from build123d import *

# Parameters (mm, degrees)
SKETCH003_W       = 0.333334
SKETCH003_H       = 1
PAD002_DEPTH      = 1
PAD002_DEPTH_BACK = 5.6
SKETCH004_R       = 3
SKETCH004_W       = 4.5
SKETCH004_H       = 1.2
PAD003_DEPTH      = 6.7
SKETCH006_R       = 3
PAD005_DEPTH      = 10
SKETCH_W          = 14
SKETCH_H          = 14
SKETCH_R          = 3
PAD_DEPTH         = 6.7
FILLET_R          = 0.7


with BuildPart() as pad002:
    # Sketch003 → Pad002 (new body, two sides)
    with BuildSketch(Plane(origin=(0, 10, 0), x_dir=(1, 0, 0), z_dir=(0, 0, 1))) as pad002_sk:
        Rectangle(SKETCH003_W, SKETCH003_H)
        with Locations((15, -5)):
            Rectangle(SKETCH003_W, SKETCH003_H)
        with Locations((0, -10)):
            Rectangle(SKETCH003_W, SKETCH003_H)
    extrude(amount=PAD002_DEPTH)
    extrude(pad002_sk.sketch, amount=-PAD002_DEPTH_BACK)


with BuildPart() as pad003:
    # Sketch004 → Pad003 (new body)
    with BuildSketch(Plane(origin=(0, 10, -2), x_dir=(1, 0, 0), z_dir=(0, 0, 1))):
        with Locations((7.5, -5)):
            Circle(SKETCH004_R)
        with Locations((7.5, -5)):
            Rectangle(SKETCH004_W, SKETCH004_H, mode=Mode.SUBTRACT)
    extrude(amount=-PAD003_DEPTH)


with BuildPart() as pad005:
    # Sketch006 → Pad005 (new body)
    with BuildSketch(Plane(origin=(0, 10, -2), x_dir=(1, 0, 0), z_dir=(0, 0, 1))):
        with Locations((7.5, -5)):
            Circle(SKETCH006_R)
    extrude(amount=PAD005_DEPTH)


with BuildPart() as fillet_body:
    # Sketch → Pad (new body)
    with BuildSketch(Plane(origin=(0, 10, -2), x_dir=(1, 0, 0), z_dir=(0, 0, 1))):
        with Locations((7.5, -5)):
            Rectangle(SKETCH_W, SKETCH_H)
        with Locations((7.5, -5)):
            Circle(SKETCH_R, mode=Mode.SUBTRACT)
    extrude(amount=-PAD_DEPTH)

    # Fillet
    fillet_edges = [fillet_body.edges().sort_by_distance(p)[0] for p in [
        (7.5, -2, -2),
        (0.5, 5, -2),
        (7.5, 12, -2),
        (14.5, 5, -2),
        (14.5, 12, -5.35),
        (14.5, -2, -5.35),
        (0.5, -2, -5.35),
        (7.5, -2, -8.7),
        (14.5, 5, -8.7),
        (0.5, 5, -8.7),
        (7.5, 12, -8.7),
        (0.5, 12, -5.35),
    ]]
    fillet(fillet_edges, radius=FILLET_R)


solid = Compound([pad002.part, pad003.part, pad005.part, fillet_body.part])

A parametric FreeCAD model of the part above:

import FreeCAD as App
import Part
import Sketcher

V = App.Vector
Q = App.Units.Quantity


def edges_at(feature, points):
    """Names of the edges that pass closest to the given points."""
    edges = feature.Shape.Edges
    near = lambda p: min(range(len(edges)), key=lambda i: edges[i].distToShape(Part.Vertex(*p))[0])
    return sorted({f"Edge{near(p) + 1}" for p in points})

doc = App.newDocument("Part")
body = doc.addObject("PartDesign::Body", "Body")
body.AllowCompound = True

sketch1 = doc.addObject("Sketcher::SketchObject", "Sketch")
body.addObject(sketch1)
sketch1.AttachmentSupport = (doc.XY_Plane, [""])
sketch1.MapMode = "FlatFace"
sketch1.addGeometry([
    Part.LineSegment(V(-0.166667, 10.5, 0), V(-0.166667, 9.5, 0)),
    Part.LineSegment(V(-0.166667, 9.5, 0), V(0.166667, 9.5, 0)),
    Part.LineSegment(V(0.166667, 9.5, 0), V(0.166667, 10.5, 0)),
    Part.LineSegment(V(0.166667, 10.5, 0), V(-0.166667, 10.5, 0)),
    Part.LineSegment(V(14.833333, 5.5, 0), V(14.833333, 4.5, 0)),
    Part.LineSegment(V(14.833333, 4.5, 0), V(15.166667, 4.5, 0)),
    Part.LineSegment(V(15.166667, 4.5, 0), V(15.166667, 5.5, 0)),
    Part.LineSegment(V(15.166667, 5.5, 0), V(14.833333, 5.5, 0)),
    Part.LineSegment(V(-0.166667, 0.5, 0), V(-0.166667, -0.5, 0)),
    Part.LineSegment(V(-0.166667, -0.5, 0), V(0.166667, -0.5, 0)),
    Part.LineSegment(V(0.166667, -0.5, 0), V(0.166667, 0.5, 0)),
    Part.LineSegment(V(0.166667, 0.5, 0), V(-0.166667, 0.5, 0)),
], False)
sketch1.addConstraint([
    Sketcher.Constraint("Coincident", 0, 2, 1, 1),
    Sketcher.Constraint("Coincident", 1, 2, 2, 1),
    Sketcher.Constraint("Coincident", 2, 2, 3, 1),
    Sketcher.Constraint("Coincident", 3, 2, 0, 1),
    Sketcher.Constraint("Coincident", 4, 2, 5, 1),
    Sketcher.Constraint("Coincident", 5, 2, 6, 1),
    Sketcher.Constraint("Coincident", 6, 2, 7, 1),
    Sketcher.Constraint("Coincident", 7, 2, 4, 1),
    Sketcher.Constraint("Coincident", 8, 2, 9, 1),
    Sketcher.Constraint("Coincident", 9, 2, 10, 1),
    Sketcher.Constraint("Coincident", 10, 2, 11, 1),
    Sketcher.Constraint("Coincident", 11, 2, 8, 1),
    Sketcher.Constraint("Vertical", 0),
    Sketcher.Constraint("Horizontal", 1),
    Sketcher.Constraint("Vertical", 2),
    Sketcher.Constraint("Horizontal", 3),
    Sketcher.Constraint("Vertical", 4),
    Sketcher.Constraint("Horizontal", 5),
    Sketcher.Constraint("Vertical", 6),
    Sketcher.Constraint("Horizontal", 7),
    Sketcher.Constraint("Vertical", 8),
    Sketcher.Constraint("Horizontal", 9),
    Sketcher.Constraint("Vertical", 10),
    Sketcher.Constraint("Horizontal", 11),
    Sketcher.Constraint("Symmetric", 8, 2, 10, 2, -1, 1),
    Sketcher.Constraint("Vertical", 3, 2, 8, 2),
    Sketcher.Constraint("Vertical", 2, 2, 9, 2),
    Sketcher.Constraint("Equal", 3, 5),
    Sketcher.Constraint("Equal", 2, 4),
    Sketcher.Constraint("Equal", 6, 8),
    Sketcher.Constraint("DistanceY", 0, 2, 0, 1, Q("1 mm")),
    Sketcher.Constraint("DistanceY", 4, 2, 1, 2, Q("5 mm")),
    Sketcher.Constraint("DistanceX", 0, 2, 4, 2, Q("15 mm")),
    Sketcher.Constraint("DistanceY", 8, 2, 0, 2, Q("10 mm")),
    Sketcher.Constraint("DistanceX", 1, 1, 1, 2, Q("0.333334 mm")),
])
pad1 = doc.addObject("PartDesign::Pad", "Pad")
body.addObject(pad1)
pad1.Profile = sketch1
pad1.Type = "TwoLengths"
pad1.Length = 1
pad1.Length2 = 5.6
body2 = doc.addObject("PartDesign::Body", "Body001")

sketch2 = doc.addObject("Sketcher::SketchObject", "Sketch001")
body2.addObject(sketch2)
sketch2.AttachmentSupport = (doc.getObject("XY_Plane001"), [""])
sketch2.MapMode = "FlatFace"
sketch2.AttachmentOffset = App.Placement(V(0, 0, -2), App.Rotation())
sketch2.addGeometry([
    Part.Circle(V(7.5, 5, 0), V(0, 0, 1), 3),
    Part.LineSegment(V(9.75, 4.4, 0), V(5.25, 4.4, 0)),
    Part.LineSegment(V(5.25, 4.4, 0), V(5.25, 5.6, 0)),
    Part.LineSegment(V(5.25, 5.6, 0), V(9.75, 5.6, 0)),
    Part.LineSegment(V(9.75, 5.6, 0), V(9.75, 4.4, 0)),
], False)
sketch2.addConstraint([
    Sketcher.Constraint("Coincident", 1, 2, 2, 1),
    Sketcher.Constraint("Coincident", 2, 2, 3, 1),
    Sketcher.Constraint("Coincident", 3, 2, 4, 1),
    Sketcher.Constraint("Coincident", 4, 2, 1, 1),
    Sketcher.Constraint("Horizontal", 1),
    Sketcher.Constraint("Vertical", 2),
    Sketcher.Constraint("Horizontal", 3),
    Sketcher.Constraint("Vertical", 4),
    Sketcher.Constraint("Diameter", 0, Q("6 mm")),
    Sketcher.Constraint("DistanceX", 1, 2, 1, 1, Q("4.5 mm")),
    Sketcher.Constraint("DistanceY", 2, 1, 2, 2, Q("1.2 mm")),
    Sketcher.Constraint("DistanceY", -1, 1, 0, 3, Q("5 mm")),
    Sketcher.Constraint("DistanceX", -1, 1, 0, 3, Q("7.5 mm")),
    Sketcher.Constraint("DistanceY", -1, 1, 1, 2, Q("4.4 mm")),
    Sketcher.Constraint("DistanceX", -1, 1, 1, 2, Q("5.25 mm")),
])
pad2 = doc.addObject("PartDesign::Pad", "Pad001")
body2.addObject(pad2)
pad2.Profile = sketch2
pad2.Length = 6.7
pad2.Reversed = True
body3 = doc.addObject("PartDesign::Body", "Body002")

sketch3 = doc.addObject("Sketcher::SketchObject", "Sketch002")
body3.addObject(sketch3)
sketch3.AttachmentSupport = (doc.getObject("XY_Plane002"), [""])
sketch3.MapMode = "FlatFace"
sketch3.AttachmentOffset = App.Placement(V(0, 0, -2), App.Rotation())
sketch3.addGeometry(Part.Circle(V(7.5, 5, 0), V(0, 0, 1), 3), False)
sketch3.addConstraint([
    Sketcher.Constraint("Diameter", 0, Q("6 mm")),
    Sketcher.Constraint("DistanceY", -1, 1, 0, 3, Q("5 mm")),
    Sketcher.Constraint("DistanceX", -1, 1, 0, 3, Q("7.5 mm")),
])
pad3 = doc.addObject("PartDesign::Pad", "Pad002")
body3.addObject(pad3)
pad3.Profile = sketch3
pad3.Length = 10
body4 = doc.addObject("PartDesign::Body", "Body003")

sketch4 = doc.addObject("Sketcher::SketchObject", "Sketch003")
body4.addObject(sketch4)
sketch4.AttachmentSupport = (doc.getObject("XY_Plane003"), [""])
sketch4.MapMode = "FlatFace"
sketch4.AttachmentOffset = App.Placement(V(0, 0, -2), App.Rotation())
sketch4.addGeometry([
    Part.LineSegment(V(0.5, 12, 0), V(0.5, -2, 0)),
    Part.LineSegment(V(0.5, -2, 0), V(14.5, -2, 0)),
    Part.LineSegment(V(14.5, -2, 0), V(14.5, 12, 0)),
    Part.LineSegment(V(14.5, 12, 0), V(0.5, 12, 0)),
    Part.Circle(V(7.5, 5, 0), V(0, 0, 1), 3),
], False)
sketch4.addConstraint([
    Sketcher.Constraint("Coincident", 0, 2, 1, 1),
    Sketcher.Constraint("Coincident", 1, 2, 2, 1),
    Sketcher.Constraint("Coincident", 2, 2, 3, 1),
    Sketcher.Constraint("Coincident", 3, 2, 0, 1),
    Sketcher.Constraint("Vertical", 0),
    Sketcher.Constraint("Horizontal", 1),
    Sketcher.Constraint("Vertical", 2),
    Sketcher.Constraint("Horizontal", 3),
    Sketcher.Constraint("Equal", 3, 0),
    Sketcher.Constraint("Diameter", 4, Q("6 mm")),
    Sketcher.Constraint("DistanceX", 1, 1, 1, 2, Q("14 mm")),
    Sketcher.Constraint("DistanceY", -1, 1, 4, 3, Q("5 mm")),
    Sketcher.Constraint("DistanceY", 0, 2, -1, 1, Q("2 mm")),
    Sketcher.Constraint("DistanceX", 0, 2, 4, 3, Q("7 mm")),
    Sketcher.Constraint("DistanceX", -1, 1, 4, 3, Q("7.5 mm")),
])
pad4 = doc.addObject("PartDesign::Pad", "Pad003")
body4.addObject(pad4)
pad4.Profile = sketch4
pad4.Length = 6.7
pad4.Reversed = True
doc.recompute()

fillet = doc.addObject("PartDesign::Fillet", "Fillet")
body4.addObject(fillet)
fillet.Base = (pad4, edges_at(pad4, [
    (7.5, -2, -2),
    (0.5, 5, -2),
    (7.5, 12, -2),
    (14.5, 5, -2),
    (14.5, 12, -5.35),
    (14.5, -2, -5.35),
    (0.5, -2, -5.35),
    (7.5, -2, -8.7),
    (14.5, 5, -8.7),
    (0.5, 5, -8.7),
    (7.5, 12, -8.7),
    (0.5, 12, -5.35),
]))
fillet.Radius = 0.7

doc.recompute()
